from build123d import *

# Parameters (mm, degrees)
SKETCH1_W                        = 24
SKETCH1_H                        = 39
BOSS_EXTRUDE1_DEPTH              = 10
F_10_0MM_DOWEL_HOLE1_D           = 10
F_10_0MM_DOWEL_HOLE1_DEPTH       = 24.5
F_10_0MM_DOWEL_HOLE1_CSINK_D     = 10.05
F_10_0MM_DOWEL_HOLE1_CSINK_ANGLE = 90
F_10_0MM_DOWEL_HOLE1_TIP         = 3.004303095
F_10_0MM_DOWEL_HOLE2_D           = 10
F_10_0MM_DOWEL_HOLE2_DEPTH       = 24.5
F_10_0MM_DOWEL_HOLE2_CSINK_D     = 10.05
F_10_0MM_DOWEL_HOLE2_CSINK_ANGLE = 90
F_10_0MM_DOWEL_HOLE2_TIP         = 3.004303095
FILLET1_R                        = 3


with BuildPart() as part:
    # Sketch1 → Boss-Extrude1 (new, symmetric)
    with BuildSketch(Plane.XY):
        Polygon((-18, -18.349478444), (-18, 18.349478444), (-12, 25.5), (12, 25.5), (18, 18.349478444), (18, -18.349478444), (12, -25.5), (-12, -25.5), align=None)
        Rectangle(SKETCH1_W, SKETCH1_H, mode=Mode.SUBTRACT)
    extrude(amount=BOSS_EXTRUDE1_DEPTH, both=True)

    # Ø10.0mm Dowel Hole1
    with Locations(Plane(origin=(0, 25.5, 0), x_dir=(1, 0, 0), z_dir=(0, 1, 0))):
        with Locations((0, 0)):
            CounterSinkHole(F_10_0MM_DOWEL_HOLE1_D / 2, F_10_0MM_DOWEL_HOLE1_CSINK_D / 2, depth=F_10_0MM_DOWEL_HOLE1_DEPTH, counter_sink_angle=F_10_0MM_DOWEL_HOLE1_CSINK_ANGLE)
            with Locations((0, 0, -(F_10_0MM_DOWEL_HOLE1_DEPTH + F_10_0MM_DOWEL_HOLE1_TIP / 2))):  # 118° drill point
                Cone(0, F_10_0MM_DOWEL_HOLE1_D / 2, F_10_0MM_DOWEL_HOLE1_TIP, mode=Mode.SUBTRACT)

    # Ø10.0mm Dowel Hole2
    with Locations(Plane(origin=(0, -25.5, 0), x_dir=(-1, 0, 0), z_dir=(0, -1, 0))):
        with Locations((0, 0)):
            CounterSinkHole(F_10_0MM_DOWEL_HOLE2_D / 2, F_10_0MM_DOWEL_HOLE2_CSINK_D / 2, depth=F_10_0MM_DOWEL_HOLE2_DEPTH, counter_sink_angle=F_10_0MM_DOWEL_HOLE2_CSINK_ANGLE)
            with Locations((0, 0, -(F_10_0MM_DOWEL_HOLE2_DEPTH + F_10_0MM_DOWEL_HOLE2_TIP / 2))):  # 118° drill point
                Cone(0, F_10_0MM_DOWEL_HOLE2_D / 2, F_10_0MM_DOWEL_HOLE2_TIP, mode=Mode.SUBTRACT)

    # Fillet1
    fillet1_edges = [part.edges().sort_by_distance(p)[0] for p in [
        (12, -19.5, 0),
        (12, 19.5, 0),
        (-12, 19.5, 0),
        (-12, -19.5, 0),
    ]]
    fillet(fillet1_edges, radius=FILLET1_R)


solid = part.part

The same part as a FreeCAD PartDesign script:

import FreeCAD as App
import Part
import Sketcher
Q = App.Units.Quantity


def edges_at(feature, points):
    """Names of the edges that pass closest to the given points."""
    edges = feature.Shape.Edges
    near = lambda p: min(range(len(edges)), key=lambda i: edges[i].distToShape(Part.Vertex(*p))[0])
    return sorted({f"Edge{near(p) + 1}" for p in points})


def add_polygon(sketch, points):
    """Adds a closed chain of lines whose ends are joined by coincident constraints."""
    first, n = sketch.GeometryCount, len(points)
    for a, b in zip(points, points[1:] + points[:1]):
        sketch.addGeometry(Part.LineSegment(App.Vector(*a, 0), App.Vector(*b, 0)), False)
    for i in range(n):
        sketch.addConstraint(Sketcher.Constraint("Coincident", first + i, 2, first + (i + 1) % n, 1))

doc = App.newDocument("Part")
body = doc.addObject("PartDesign::Body", "Body")

sketch1 = doc.addObject("Sketcher::SketchObject", "Sketch")
body.addObject(sketch1)
sketch1.AttachmentSupport = (doc.XY_Plane, [""])
sketch1.MapMode = "FlatFace"
add_polygon(sketch1, [(-18, 18.349478), (-18, -18.349478), (-12, -25.5), (12, -25.5), (18, -18.349478), (18, 18.349478), (12, 25.5), (-12, 25.5)])
add_polygon(sketch1, [(-12, -19.5), (-12, 19.5), (12, 19.5), (12, -19.5)])
sketch1.addConstraint([
    Sketcher.Constraint("Vertical", 0),
    Sketcher.Constraint("Horizontal", 2),
    Sketcher.Constraint("Vertical", 4),
    Sketcher.Constraint("Horizontal", 6),
    Sketcher.Constraint("Vertical", 8),
    Sketcher.Constraint("Horizontal", 9),
    Sketcher.Constraint("Vertical", 10),
    Sketcher.Constraint("Horizontal", 11),
    Sketcher.Constraint("Symmetric", 0, 2, 4, 2, -1, 1),
    Sketcher.Constraint("Symmetric", 1, 2, 5, 2, -1, 1),
    Sketcher.Constraint("Symmetric", 8, 2, 10, 2, -1, 1),
    Sketcher.Constraint("Parallel", 3, 7),
    Sketcher.Constraint("Horizontal", 0, 2, 3, 2),
    Sketcher.Constraint("Horizontal", 4, 2, 7, 2),
    Sketcher.Constraint("Vertical", 2, 2, 5, 2),
    Sketcher.Constraint("Vertical", 6, 2, 8, 2),
    Sketcher.Constraint("DistanceX", 2, 1, 2, 2, 24.0),
    Sketcher.Constraint("DistanceY", 8, 1, 8, 2, 39.0),
    Sketcher.Constraint("Angle", 1, Q("-50 deg")),
    Sketcher.Constraint("DistanceX", 0, 2, -1, 1, 18.0),
    Sketcher.Constraint("DistanceY", 2, 2, 5, 2, 51.0),
])
pad1 = doc.addObject("PartDesign::Pad", "Pad")
body.addObject(pad1)
pad1.Profile = sketch1
pad1.Length = 20
pad1.Midplane = True

sketch2 = doc.addObject("Sketcher::SketchObject", "Sketch001")
body.addObject(sketch2)
sketch2.AttachmentSupport = (doc.XZ_Plane, [""])
sketch2.MapMode = "FlatFace"
sketch2.AttachmentOffset = App.Placement(App.Vector(0, 0, -25.5), App.Rotation())
sketch2.addGeometry(Part.Circle(App.Vector(0, 0, 0), App.Vector(0, 0, 1), 5), False)
sketch2.addConstraint([
    Sketcher.Constraint("Coincident", 0, 3, -1, 1),
    Sketcher.Constraint("Diameter", 0, 10.0),
])
doc.recompute()
hole = doc.addObject("PartDesign::Hole", "Hole")
body.addObject(hole)
hole.Profile = sketch2
hole.ThreadType = "None"
hole.Diameter = 10
hole.DepthType = "Dimension"
hole.Depth = 24.5
hole.DrillPoint = "Angled"
hole.DrillPointAngle = 118
hole.HoleCutType = "Countersink"
hole.HoleCutDiameter = 10.05
hole.HoleCutCountersinkAngle = 90
hole.Reversed = True

sketch3 = doc.addObject("Sketcher::SketchObject", "Sketch002")
body.addObject(sketch3)
sketch3.AttachmentSupport = (doc.XZ_Plane, [""])
sketch3.MapMode = "FlatFace"
sketch3.AttachmentOffset = App.Placement(App.Vector(0, 0, 25.5), App.Rotation())
sketch3.addGeometry(Part.Circle(App.Vector(0, 0, 0), App.Vector(0, 0, 1), 5), False)
sketch3.addConstraint([
    Sketcher.Constraint("Coincident", 0, 3, -1, 1),
    Sketcher.Constraint("Diameter", 0, 10.0),
])
doc.recompute()
hole2 = doc.addObject("PartDesign::Hole", "Hole001")
body.addObject(hole2)
hole2.Profile = sketch3
hole2.ThreadType = "None"
hole2.Diameter = 10
hole2.DepthType = "Dimension"
hole2.Depth = 24.5
hole2.DrillPoint = "Angled"
hole2.DrillPointAngle = 118
hole2.HoleCutType = "Countersink"
hole2.HoleCutDiameter = 10.05
hole2.HoleCutCountersinkAngle = 90
doc.recompute()

fillet = doc.addObject("PartDesign::Fillet", "Fillet")
body.addObject(fillet)
fillet.Base = (hole2, edges_at(hole2, [
    (12, -19.5, 0),
    (12, 19.5, 0),
    (-12, 19.5, 0),
    (-12, -19.5, 0),
]))
fillet.Radius = 3

doc.recompute()
